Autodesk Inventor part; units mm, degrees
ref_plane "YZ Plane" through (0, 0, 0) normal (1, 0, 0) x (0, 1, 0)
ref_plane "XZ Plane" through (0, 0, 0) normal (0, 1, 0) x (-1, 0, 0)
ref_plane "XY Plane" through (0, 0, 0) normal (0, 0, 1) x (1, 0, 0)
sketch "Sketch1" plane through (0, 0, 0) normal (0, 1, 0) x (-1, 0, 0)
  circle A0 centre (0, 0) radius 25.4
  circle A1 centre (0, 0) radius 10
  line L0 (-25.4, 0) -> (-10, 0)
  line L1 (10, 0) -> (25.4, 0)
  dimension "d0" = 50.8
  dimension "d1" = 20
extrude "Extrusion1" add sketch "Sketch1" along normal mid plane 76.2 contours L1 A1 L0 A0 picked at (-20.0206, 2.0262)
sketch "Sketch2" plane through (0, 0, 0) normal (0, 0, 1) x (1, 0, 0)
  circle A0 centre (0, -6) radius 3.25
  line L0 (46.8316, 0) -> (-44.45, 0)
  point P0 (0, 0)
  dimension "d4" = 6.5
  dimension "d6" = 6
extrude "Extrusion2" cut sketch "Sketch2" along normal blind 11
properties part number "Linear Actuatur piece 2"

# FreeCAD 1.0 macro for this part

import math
import FreeCAD as App
import Part
import Sketcher
from FreeCAD import Vector
Q = App.Units.Quantity

doc = App.newDocument("Part")
params = doc.addObject("Spreadsheet::Sheet", "Params")
for row, (alias, value) in enumerate([
    ("sketch1_radius", "1 in"),
    ("pad1_length", "3 in"),
    ("pocket1_length", "11 mm"),
], start=1):
    params.set(f"A{row}", alias)
    params.set(f"B{row}", "=" + value)
    params.setAlias(f"B{row}", alias)

body = doc.addObject("PartDesign::Body", "Body")

sketch1 = body.newObject("Sketcher::SketchObject", "Sketch")
sketch1.AttachmentSupport = (doc.getObject("XZ_Plane"), [""])
sketch1.MapMode = "FlatFace"
sketch1.addGeometry(Part.LineSegment(Vector(-10, 0, 0), Vector(-25.4, 0, 0)), False)
sketch1.addGeometry(Part.ArcOfCircle(Part.Circle(Vector(0, 0, 0), Vector(0, 0, 1), 25.4), math.radians(0), math.radians(180)), False)
sketch1.addGeometry(Part.LineSegment(Vector(25.4, 0, 0), Vector(10, 0, 0)), False)
sketch1.addGeometry(Part.ArcOfCircle(Part.Circle(Vector(0, 0, 0), Vector(0, 0, 1), 10), math.radians(0), math.radians(180)), False)
sketch1.addConstraint(Sketcher.Constraint("Coincident", 0, 2, 1, 2))
sketch1.addConstraint(Sketcher.Constraint("Coincident", 1, 1, 2, 1))
sketch1.addConstraint(Sketcher.Constraint("Coincident", 2, 2, 3, 1))
sketch1.addConstraint(Sketcher.Constraint("Coincident", 3, 2, 0, 1))
sketch1.addConstraint(Sketcher.Constraint("Horizontal", 0))
sketch1.addConstraint(Sketcher.Constraint("Horizontal", 2))
sketch1.addConstraint(Sketcher.Constraint("Coincident", 1, 3, -1, 1))
sketch1.addConstraint(Sketcher.Constraint("Coincident", 3, 3, -1, 1))
sketch1.addConstraint(Sketcher.Constraint("PointOnObject", 0, 2, -1))
sketch1.addConstraint(Sketcher.Constraint("PointOnObject", 1, 1, -1))
sketch1.addConstraint(Sketcher.Constraint("Radius", 1, Q("1 in")))
sketch1.addConstraint(Sketcher.Constraint("Radius", 3, Q("0.3937 in")))
sketch1.setExpression("Constraints[10]", "Params.sketch1_radius")
pad1 = body.newObject("PartDesign::Pad", "Pad")
pad1.Profile = sketch1
pad1.setExpression("Length", "Params.pad1_length")
pad1.Midplane = True

sketch2 = body.newObject("Sketcher::SketchObject", "Sketch001")
sketch2.AttachmentSupport = (doc.getObject("XY_Plane"), [""])
sketch2.MapMode = "FlatFace"
sketch2.addGeometry(Part.Circle(Vector(0, -6, 0), Vector(0, 0, 1), 3.25), False)
sketch2.addConstraint(Sketcher.Constraint("PointOnObject", 0, 3, -2))
sketch2.addConstraint(Sketcher.Constraint("Diameter", 0, Q("0.2559 in")))
sketch2.addConstraint(Sketcher.Constraint("DistanceY", 0, 3, -1, 1, 6.0))
pocket1 = body.newObject("PartDesign::Pocket", "Pocket")
pocket1.Profile = sketch2
pocket1.setExpression("Length", "Params.pocket1_length")
pocket1.Reversed = True

doc.recompute()
